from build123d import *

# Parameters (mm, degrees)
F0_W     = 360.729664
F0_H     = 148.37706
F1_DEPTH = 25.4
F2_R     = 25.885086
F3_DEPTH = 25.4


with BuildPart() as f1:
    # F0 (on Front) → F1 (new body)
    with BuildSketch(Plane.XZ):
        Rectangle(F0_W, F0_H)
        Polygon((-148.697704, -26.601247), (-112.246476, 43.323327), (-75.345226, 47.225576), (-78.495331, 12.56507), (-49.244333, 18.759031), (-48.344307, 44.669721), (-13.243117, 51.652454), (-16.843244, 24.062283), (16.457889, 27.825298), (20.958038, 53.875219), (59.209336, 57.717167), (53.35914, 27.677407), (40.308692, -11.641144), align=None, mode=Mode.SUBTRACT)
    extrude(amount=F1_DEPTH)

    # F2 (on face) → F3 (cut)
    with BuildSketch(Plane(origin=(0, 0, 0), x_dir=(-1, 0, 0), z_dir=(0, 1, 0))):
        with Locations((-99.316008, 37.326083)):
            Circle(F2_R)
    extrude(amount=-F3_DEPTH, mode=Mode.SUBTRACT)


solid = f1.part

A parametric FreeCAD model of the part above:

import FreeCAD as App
import Part
import Sketcher
Q = App.Units.Quantity

doc = App.newDocument("Part")
params = doc.addObject("Spreadsheet::Sheet", "Params")
for row, (alias, value) in enumerate([
    ("pad1_length", "1 in"),
    ("pocket1_length", "1 in"),
], start=1):
    params.set(f"A{row}", alias)
    params.set(f"B{row}", "=" + value)
    params.setAlias(f"B{row}", alias)

body = doc.addObject("PartDesign::Body", "Body")

# Sketch on XZ plane
sketch1 = body.newObject("Sketcher::SketchObject", "Sketch")
sketch1.AttachmentSupport = (doc.getObject("XZ_Plane"), [""])
sketch1.MapMode = "FlatFace"
sketch1.addGeometry([
    Part.LineSegment(App.Vector(-180.364832, 74.18853, 0), App.Vector(-180.364832, -74.18853, 0)),  # 0
    Part.LineSegment(App.Vector(-180.364832, -74.18853, 0), App.Vector(180.364832, -74.18853, 0)),  # 1
    Part.LineSegment(App.Vector(180.364832, -74.18853, 0), App.Vector(180.364832, 74.18853, 0)),  # 2
    Part.LineSegment(App.Vector(180.364832, 74.18853, 0), App.Vector(-180.364832, 74.18853, 0)),  # 3
    Part.LineSegment(App.Vector(40.308692, -11.641144, 0), App.Vector(-148.697704, -26.601247, 0)),  # 4
    Part.LineSegment(App.Vector(-148.697704, -26.601247, 0), App.Vector(-112.246476, 43.323327, 0)),  # 5
    Part.LineSegment(App.Vector(-112.246476, 43.323327, 0), App.Vector(-75.345226, 47.225576, 0)),  # 6
    Part.LineSegment(App.Vector(-75.345226, 47.225576, 0), App.Vector(-78.495331, 12.56507, 0)),  # 7
    Part.LineSegment(App.Vector(-78.495331, 12.56507, 0), App.Vector(-49.244333, 18.759031, 0)),  # 8
    Part.LineSegment(App.Vector(-49.244333, 18.759031, 0), App.Vector(-48.344307, 44.669721, 0)),  # 9
    Part.LineSegment(App.Vector(-48.344307, 44.669721, 0), App.Vector(-13.243117, 51.652454, 0)),  # 10
    Part.LineSegment(App.Vector(-13.243117, 51.652454, 0), App.Vector(-16.843244, 24.062283, 0)),  # 11
    Part.LineSegment(App.Vector(-16.843244, 24.062283, 0), App.Vector(16.457889, 27.825298, 0)),  # 12
    Part.LineSegment(App.Vector(16.457889, 27.825298, 0), App.Vector(20.958038, 53.875219, 0)),  # 13
    Part.LineSegment(App.Vector(20.958038, 53.875219, 0), App.Vector(59.209336, 57.717167, 0)),  # 14
    Part.LineSegment(App.Vector(59.209336, 57.717167, 0), App.Vector(53.35914, 27.677407, 0)),  # 15
    Part.LineSegment(App.Vector(53.35914, 27.677407, 0), App.Vector(40.308692, -11.641144, 0)),  # 16
], False)
sketch1.addConstraint([
    Sketcher.Constraint("Coincident", 0, 2, 1, 1),
    Sketcher.Constraint("Coincident", 1, 2, 2, 1),
    Sketcher.Constraint("Coincident", 2, 2, 3, 1),
    Sketcher.Constraint("Coincident", 3, 2, 0, 1),
    Sketcher.Constraint("Coincident", 4, 2, 5, 1),
    Sketcher.Constraint("Coincident", 5, 2, 6, 1),
    Sketcher.Constraint("Coincident", 6, 2, 7, 1),
    Sketcher.Constraint("Coincident", 7, 2, 8, 1),
    Sketcher.Constraint("Coincident", 8, 2, 9, 1),
    Sketcher.Constraint("Coincident", 9, 2, 10, 1),
    Sketcher.Constraint("Coincident", 10, 2, 11, 1),
    Sketcher.Constraint("Coincident", 11, 2, 12, 1),
    Sketcher.Constraint("Coincident", 12, 2, 13, 1),
    Sketcher.Constraint("Coincident", 13, 2, 14, 1),
    Sketcher.Constraint("Coincident", 14, 2, 15, 1),
    Sketcher.Constraint("Coincident", 15, 2, 16, 1),
    Sketcher.Constraint("Coincident", 16, 2, 4, 1),
    Sketcher.Constraint("Vertical", 0),
    Sketcher.Constraint("Horizontal", 1),
    Sketcher.Constraint("Vertical", 2),
    Sketcher.Constraint("Horizontal", 3),
    Sketcher.Constraint("Symmetric", 0, 2, 2, 2, -1, 1),
    Sketcher.Constraint("Distance", 8, Q("29.899599 mm")),
    Sketcher.Constraint("Distance", 16, Q("41.4278 mm")),
    Sketcher.Constraint("DistanceY", 0, 2, 0, 1, Q("148.37706 mm")),
    Sketcher.Constraint("DistanceY", -1, 1, 12, 2, Q("27.825298 mm")),
    Sketcher.Constraint("DistanceX", 3, 2, 7, 2, Q("101.869501 mm")),
    Sketcher.Constraint("DistanceY", 0, 2, 7, 2, Q("86.7536 mm")),
    Sketcher.Constraint("DistanceX", 3, 2, 8, 2, Q("131.120499 mm")),
    Sketcher.Constraint("DistanceX", 13, 2, 14, 2, Q("38.251298 mm")),
    Sketcher.Constraint("DistanceX", 13, 2, 15, 2, Q("32.401102 mm")),
    Sketcher.Constraint("Distance", 5, Q("78.855171 mm")),
    Sketcher.Constraint("Distance", 7, Q("34.80336 mm")),
    Sketcher.Constraint("Distance", 12, Q("33.513068 mm")),
    Sketcher.Constraint("DistanceX", 1, 1, 1, 2, Q("360.729664 mm")),
    Sketcher.Constraint("DistanceY", -1, 1, 9, 2, Q("44.669721 mm")),
    Sketcher.Constraint("DistanceX", -1, 1, 12, 2, Q("16.457889 mm")),
    Sketcher.Constraint("DistanceY", -1, 1, 13, 2, Q("53.875219 mm")),
    Sketcher.Constraint("DistanceX", -1, 1, 15, 2, Q("53.35914 mm")),
    Sketcher.Constraint("DistanceX", 0, 2, 4, 2, Q("31.667128 mm")),
    Sketcher.Constraint("DistanceX", 5, 2, 2, 2, Q("292.611308 mm")),
    Sketcher.Constraint("DistanceX", 5, 2, 6, 2, Q("36.90125 mm")),
    Sketcher.Constraint("DistanceY", 5, 2, 6, 2, Q("3.902249 mm")),
    Sketcher.Constraint("DistanceX", 6, 2, 9, 2, Q("27.000919 mm")),
    Sketcher.Constraint("DistanceX", 9, 2, 10, 2, Q("35.10119 mm")),
    Sketcher.Constraint("DistanceY", 6, 2, 10, 2, Q("4.426878 mm")),
    Sketcher.Constraint("DistanceY", 11, 2, 10, 2, Q("27.590171 mm")),
    Sketcher.Constraint("DistanceY", 13, 2, 14, 2, Q("3.841948 mm")),
    Sketcher.Constraint("DistanceY", 15, 2, 14, 2, Q("30.03976 mm")),
    Sketcher.Constraint("DistanceY", 16, 2, 15, 2, Q("39.318551 mm")),
])
pad1 = body.newObject("PartDesign::Pad", "Pad")
pad1.Profile = sketch1
pad1.setExpression("Length", "Params.pad1_length")

# Sketch on XZ plane
sketch2 = body.newObject("Sketcher::SketchObject", "Sketch001")
sketch2.AttachmentSupport = (doc.getObject("XZ_Plane"), [""])
sketch2.MapMode = "FlatFace"
sketch2.addGeometry(Part.Circle(App.Vector(99.316008, 37.326083, 0), App.Vector(0, 0, 1), 25.885086), False)
sketch2.addConstraint([
    Sketcher.Constraint("Diameter", 0, Q("51.770172 mm")),
    Sketcher.Constraint("DistanceX", -1, 1, 0, 3, Q("99.316008 mm")),
    Sketcher.Constraint("DistanceY", -1, 1, 0, 3, Q("37.326083 mm")),
])
pocket1 = body.newObject("PartDesign::Pocket", "Pocket")
pocket1.Profile = sketch2
pocket1.setExpression("Length", "Params.pocket1_length")
pocket1.Reversed = True

doc.recompute()
